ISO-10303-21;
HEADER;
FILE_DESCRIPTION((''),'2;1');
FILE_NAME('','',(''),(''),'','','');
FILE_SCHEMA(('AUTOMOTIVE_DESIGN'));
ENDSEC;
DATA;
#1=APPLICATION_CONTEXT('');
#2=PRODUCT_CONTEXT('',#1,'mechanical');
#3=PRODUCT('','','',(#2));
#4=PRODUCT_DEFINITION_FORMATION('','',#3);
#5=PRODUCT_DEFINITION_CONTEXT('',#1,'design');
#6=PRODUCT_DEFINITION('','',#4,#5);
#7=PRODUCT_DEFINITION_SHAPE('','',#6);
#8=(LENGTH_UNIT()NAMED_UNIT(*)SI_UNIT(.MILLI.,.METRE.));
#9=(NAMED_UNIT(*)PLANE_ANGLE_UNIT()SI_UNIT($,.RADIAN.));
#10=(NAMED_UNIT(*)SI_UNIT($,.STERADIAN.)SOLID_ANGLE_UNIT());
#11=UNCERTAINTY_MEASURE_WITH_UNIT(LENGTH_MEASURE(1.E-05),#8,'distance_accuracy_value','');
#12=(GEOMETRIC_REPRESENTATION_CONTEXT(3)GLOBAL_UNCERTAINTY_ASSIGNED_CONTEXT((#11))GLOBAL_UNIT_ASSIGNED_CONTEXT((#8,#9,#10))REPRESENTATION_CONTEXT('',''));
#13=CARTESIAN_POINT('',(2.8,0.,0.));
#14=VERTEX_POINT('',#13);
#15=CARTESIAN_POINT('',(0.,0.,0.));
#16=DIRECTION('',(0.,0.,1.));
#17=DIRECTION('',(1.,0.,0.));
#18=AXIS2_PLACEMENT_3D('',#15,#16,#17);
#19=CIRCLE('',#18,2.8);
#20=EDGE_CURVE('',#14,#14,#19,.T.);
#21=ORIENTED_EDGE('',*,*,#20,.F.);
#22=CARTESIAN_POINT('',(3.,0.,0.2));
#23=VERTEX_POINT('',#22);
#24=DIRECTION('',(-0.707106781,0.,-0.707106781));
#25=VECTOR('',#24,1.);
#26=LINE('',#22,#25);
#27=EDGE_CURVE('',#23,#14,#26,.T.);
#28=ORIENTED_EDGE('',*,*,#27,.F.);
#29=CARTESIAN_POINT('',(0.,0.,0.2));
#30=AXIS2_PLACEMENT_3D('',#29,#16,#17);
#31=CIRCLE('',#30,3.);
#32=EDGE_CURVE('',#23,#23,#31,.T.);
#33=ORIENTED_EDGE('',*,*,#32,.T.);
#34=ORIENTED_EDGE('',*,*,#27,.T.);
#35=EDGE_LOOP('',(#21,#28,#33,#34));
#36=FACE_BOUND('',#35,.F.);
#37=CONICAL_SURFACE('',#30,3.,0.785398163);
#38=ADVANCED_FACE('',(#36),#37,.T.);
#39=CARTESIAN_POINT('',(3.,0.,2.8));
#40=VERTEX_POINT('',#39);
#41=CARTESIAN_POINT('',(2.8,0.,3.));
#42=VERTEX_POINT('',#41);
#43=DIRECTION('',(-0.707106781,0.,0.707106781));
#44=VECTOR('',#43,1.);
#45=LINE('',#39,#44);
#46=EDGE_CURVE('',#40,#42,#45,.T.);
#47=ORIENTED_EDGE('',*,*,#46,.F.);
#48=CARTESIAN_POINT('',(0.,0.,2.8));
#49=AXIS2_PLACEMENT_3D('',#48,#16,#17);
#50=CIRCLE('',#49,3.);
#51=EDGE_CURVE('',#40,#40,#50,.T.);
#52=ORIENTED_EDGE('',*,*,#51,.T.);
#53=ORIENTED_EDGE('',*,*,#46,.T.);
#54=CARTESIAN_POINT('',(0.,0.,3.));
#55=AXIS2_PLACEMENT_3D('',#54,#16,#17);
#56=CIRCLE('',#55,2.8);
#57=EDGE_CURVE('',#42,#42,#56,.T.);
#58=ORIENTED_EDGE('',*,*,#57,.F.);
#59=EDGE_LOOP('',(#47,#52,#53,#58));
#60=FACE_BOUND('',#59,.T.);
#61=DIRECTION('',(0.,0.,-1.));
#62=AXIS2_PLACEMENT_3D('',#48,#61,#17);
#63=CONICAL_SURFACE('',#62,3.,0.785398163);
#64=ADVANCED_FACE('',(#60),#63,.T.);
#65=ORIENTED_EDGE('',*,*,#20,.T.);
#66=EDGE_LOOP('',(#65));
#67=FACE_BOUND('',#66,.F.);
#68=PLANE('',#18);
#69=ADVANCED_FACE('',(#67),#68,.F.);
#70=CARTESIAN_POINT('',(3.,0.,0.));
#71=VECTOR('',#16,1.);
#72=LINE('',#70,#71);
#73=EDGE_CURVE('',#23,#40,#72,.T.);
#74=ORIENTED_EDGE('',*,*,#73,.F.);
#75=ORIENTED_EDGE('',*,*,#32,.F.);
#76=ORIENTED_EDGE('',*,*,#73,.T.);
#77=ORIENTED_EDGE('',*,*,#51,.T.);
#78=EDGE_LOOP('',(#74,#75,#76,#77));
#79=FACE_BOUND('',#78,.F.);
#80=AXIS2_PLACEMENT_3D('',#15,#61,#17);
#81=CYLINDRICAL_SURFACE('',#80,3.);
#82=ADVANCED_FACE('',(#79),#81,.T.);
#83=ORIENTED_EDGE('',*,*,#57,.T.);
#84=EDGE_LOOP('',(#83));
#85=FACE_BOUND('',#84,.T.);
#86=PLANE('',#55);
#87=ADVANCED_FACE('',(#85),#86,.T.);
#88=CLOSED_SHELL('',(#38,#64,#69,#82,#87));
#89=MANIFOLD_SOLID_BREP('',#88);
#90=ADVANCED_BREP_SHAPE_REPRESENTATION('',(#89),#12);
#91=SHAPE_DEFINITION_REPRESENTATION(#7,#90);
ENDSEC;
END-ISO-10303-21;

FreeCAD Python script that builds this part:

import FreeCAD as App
import Part
import Sketcher


def edges_at(feature, points):
    """Names of the edges that pass closest to the given points."""
    edges = feature.Shape.Edges
    near = lambda p: min(range(len(edges)), key=lambda i: edges[i].distToShape(Part.Vertex(*p))[0])
    return sorted({f"Edge{near(p) + 1}" for p in points})

doc = App.newDocument("Part")
params = doc.addObject("Spreadsheet::Sheet", "Params")
for row, (alias, value) in enumerate([
    ("sketch1_diameter", "6 mm"),
    ("pad1_length", "3 mm"),
    ("chamfer_size", "0.2 mm"),
], start=1):
    params.set(f"A{row}", alias)
    params.set(f"B{row}", "=" + value)
    params.setAlias(f"B{row}", alias)

body = doc.addObject("PartDesign::Body", "Body")

# Sketch on XY plane
sketch1 = body.newObject("Sketcher::SketchObject", "Sketch")
sketch1.AttachmentSupport = (doc.getObject("XY_Plane"), [""])
sketch1.MapMode = "FlatFace"
sketch1.addGeometry(Part.Circle(App.Vector(0, 0, 0), App.Vector(0, 0, 1), 3), False)
sketch1.addConstraint([
    Sketcher.Constraint("Coincident", 0, 3, -1, 1),
    Sketcher.Constraint("Diameter", 0, 6.0),
])
sketch1.setExpression("Constraints[1]", "Params.sketch1_diameter")
pad1 = body.newObject("PartDesign::Pad", "Pad")
pad1.Profile = sketch1
pad1.setExpression("Length", "Params.pad1_length")
doc.recompute()

chamfer = body.newObject("PartDesign::Chamfer", "Chamfer")
chamfer.Base = (pad1, edges_at(pad1, [(-2.797, -1.085, 3), (-2.797, -1.085, 0)]))
chamfer.setExpression("Size", "Params.chamfer_size")

doc.recompute()
